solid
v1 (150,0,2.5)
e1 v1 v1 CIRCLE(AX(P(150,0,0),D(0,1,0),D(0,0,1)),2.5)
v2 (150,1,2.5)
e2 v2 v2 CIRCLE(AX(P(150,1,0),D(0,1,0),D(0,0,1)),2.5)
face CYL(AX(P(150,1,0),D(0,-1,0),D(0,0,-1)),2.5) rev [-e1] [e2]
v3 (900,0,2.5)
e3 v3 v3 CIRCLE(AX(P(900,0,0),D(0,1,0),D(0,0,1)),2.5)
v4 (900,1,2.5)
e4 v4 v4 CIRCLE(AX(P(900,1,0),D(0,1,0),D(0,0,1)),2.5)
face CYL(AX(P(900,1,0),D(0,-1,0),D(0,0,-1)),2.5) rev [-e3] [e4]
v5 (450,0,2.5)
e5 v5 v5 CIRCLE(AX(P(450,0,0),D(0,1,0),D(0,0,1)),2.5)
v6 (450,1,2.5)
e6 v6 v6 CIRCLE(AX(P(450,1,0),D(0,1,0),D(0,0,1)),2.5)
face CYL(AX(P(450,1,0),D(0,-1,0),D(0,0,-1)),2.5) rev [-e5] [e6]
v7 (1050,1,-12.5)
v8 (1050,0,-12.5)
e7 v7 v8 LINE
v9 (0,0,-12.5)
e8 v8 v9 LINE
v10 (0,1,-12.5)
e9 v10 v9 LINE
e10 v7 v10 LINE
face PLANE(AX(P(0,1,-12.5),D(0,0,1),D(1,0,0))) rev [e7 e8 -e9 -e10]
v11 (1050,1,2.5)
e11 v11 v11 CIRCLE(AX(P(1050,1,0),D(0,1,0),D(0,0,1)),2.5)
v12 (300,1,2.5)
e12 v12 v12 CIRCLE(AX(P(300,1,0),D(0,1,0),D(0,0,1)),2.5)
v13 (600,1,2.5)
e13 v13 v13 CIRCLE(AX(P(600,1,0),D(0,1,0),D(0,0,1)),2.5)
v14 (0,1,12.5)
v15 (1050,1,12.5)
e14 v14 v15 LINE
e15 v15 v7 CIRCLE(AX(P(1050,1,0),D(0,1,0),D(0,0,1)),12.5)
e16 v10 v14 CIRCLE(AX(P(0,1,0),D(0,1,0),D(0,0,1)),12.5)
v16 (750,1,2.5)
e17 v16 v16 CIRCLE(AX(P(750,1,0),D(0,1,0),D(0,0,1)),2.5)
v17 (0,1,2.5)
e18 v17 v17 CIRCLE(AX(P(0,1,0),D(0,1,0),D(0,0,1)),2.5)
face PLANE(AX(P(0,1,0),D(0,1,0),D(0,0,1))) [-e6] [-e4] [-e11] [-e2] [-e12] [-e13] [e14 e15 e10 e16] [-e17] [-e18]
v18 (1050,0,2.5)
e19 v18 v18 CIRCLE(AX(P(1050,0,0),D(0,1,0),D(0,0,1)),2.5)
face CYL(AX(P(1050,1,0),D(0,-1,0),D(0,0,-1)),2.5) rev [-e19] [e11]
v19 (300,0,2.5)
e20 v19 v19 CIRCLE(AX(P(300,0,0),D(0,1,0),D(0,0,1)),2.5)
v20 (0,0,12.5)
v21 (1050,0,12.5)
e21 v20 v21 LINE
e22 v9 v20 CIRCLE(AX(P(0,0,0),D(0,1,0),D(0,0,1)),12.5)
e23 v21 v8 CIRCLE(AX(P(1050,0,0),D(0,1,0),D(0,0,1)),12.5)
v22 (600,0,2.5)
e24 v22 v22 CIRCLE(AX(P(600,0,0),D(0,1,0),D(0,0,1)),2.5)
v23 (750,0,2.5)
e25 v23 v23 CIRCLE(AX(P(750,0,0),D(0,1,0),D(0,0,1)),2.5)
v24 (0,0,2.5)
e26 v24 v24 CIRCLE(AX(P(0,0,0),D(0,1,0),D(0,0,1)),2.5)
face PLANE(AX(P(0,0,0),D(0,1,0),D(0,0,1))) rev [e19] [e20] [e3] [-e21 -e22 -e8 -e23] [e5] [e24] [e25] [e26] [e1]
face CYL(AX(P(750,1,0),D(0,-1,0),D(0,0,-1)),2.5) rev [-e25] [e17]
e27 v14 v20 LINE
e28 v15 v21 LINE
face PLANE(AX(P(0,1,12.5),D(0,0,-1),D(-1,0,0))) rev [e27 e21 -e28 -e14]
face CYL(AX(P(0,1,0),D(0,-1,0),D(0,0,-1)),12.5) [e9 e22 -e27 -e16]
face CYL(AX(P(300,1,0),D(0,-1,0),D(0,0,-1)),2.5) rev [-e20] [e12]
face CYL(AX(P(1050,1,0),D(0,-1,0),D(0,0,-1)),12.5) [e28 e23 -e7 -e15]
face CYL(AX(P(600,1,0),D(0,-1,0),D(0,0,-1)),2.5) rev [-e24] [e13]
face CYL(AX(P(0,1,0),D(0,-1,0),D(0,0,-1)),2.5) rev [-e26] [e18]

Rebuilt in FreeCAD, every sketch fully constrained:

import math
import FreeCAD as App
import Part
import Sketcher

V = App.Vector
Q = App.Units.Quantity

doc = App.newDocument("Part")
body = doc.addObject("PartDesign::Body", "Body")

# Sketch on XZ plane
sketch1 = body.newObject("Sketcher::SketchObject", "Sketch")
sketch1.AttachmentSupport = (doc.getObject("XZ_Plane"), [""])
sketch1.MapMode = "FlatFace"
sketch1.addGeometry(Part.LineSegment(V(1050, -12.5, 0), V(0, -12.5, 0)), False)
sketch1.addGeometry(Part.ArcOfCircle(Part.Circle(V(0, 0, 0), V(0, 0, 1), 12.5), math.radians(90), math.radians(270)), False)
sketch1.addGeometry(Part.LineSegment(V(0, 12.5, 0), V(1050, 12.5, 0)), False)
sketch1.addGeometry(Part.ArcOfCircle(Part.Circle(V(1050, 0, 0), V(0, 0, 1), 12.5), math.radians(-90), math.radians(90)), False)
sketch1.addGeometry(Part.Circle(V(1050, 0, 0), V(0, 0, 1), 2.5), False)
sketch1.addGeometry(Part.Circle(V(900, 0, 0), V(0, 0, 1), 2.5), False)
sketch1.addGeometry(Part.Circle(V(750, 0, 0), V(0, 0, 1), 2.5), False)
sketch1.addGeometry(Part.Circle(V(600, 0, 0), V(0, 0, 1), 2.5), False)
sketch1.addGeometry(Part.Circle(V(450, 0, 0), V(0, 0, 1), 2.5), False)
sketch1.addGeometry(Part.Circle(V(300, 0, 0), V(0, 0, 1), 2.5), False)
sketch1.addGeometry(Part.Circle(V(150, 0, 0), V(0, 0, 1), 2.5), False)
sketch1.addGeometry(Part.Circle(V(0, 0, 0), V(0, 0, 1), 2.5), False)
sketch1.addConstraint(Sketcher.Constraint("Tangent", 0, 2, 1, 2))
sketch1.addConstraint(Sketcher.Constraint("Tangent", 1, 1, 2, 1))
sketch1.addConstraint(Sketcher.Constraint("Tangent", 2, 2, 3, 2))
sketch1.addConstraint(Sketcher.Constraint("Tangent", 3, 1, 0, 1))
sketch1.addConstraint(Sketcher.Constraint("Horizontal", 0))
sketch1.addConstraint(Sketcher.Constraint("Horizontal", 2))
sketch1.addConstraint(Sketcher.Constraint("Coincident", 1, 3, -1, 1))
sketch1.addConstraint(Sketcher.Constraint("Coincident", 11, 3, -1, 1))
sketch1.addConstraint(Sketcher.Constraint("Coincident", 4, 3, 3, 3))
sketch1.addConstraint(Sketcher.Constraint("Equal", 4, 5))
sketch1.addConstraint(Sketcher.Constraint("Equal", 5, 6))
sketch1.addConstraint(Sketcher.Constraint("Equal", 6, 7))
sketch1.addConstraint(Sketcher.Constraint("Equal", 7, 8))
sketch1.addConstraint(Sketcher.Constraint("Equal", 8, 9))
sketch1.addConstraint(Sketcher.Constraint("Equal", 9, 10))
sketch1.addConstraint(Sketcher.Constraint("Equal", 10, 11))
sketch1.addConstraint(Sketcher.Constraint("PointOnObject", 5, 3, -1))
sketch1.addConstraint(Sketcher.Constraint("PointOnObject", 6, 3, -1))
sketch1.addConstraint(Sketcher.Constraint("PointOnObject", 7, 3, -1))
sketch1.addConstraint(Sketcher.Constraint("PointOnObject", 8, 3, -1))
sketch1.addConstraint(Sketcher.Constraint("PointOnObject", 9, 3, -1))
sketch1.addConstraint(Sketcher.Constraint("PointOnObject", 10, 3, -1))
sketch1.addConstraint(Sketcher.Constraint("Diameter", 4, Q("5 mm")))
sketch1.addConstraint(Sketcher.Constraint("Radius", 1, Q("12.5 mm")))
sketch1.addConstraint(Sketcher.Constraint("DistanceX", 0, 2, 0, 1, Q("1050 mm")))
sketch1.addConstraint(Sketcher.Constraint("DistanceX", -1, 1, 5, 3, Q("900 mm")))
sketch1.addConstraint(Sketcher.Constraint("DistanceX", -1, 1, 6, 3, Q("750 mm")))
sketch1.addConstraint(Sketcher.Constraint("DistanceX", -1, 1, 7, 3, Q("600 mm")))
sketch1.addConstraint(Sketcher.Constraint("DistanceX", -1, 1, 8, 3, Q("450 mm")))
sketch1.addConstraint(Sketcher.Constraint("DistanceX", -1, 1, 9, 3, Q("300 mm")))
sketch1.addConstraint(Sketcher.Constraint("DistanceX", -1, 1, 10, 3, Q("150 mm")))
pad1 = body.newObject("PartDesign::Pad", "Pad")
pad1.Profile = sketch1
pad1.Length = 1
pad1.Reversed = True

doc.recompute()
